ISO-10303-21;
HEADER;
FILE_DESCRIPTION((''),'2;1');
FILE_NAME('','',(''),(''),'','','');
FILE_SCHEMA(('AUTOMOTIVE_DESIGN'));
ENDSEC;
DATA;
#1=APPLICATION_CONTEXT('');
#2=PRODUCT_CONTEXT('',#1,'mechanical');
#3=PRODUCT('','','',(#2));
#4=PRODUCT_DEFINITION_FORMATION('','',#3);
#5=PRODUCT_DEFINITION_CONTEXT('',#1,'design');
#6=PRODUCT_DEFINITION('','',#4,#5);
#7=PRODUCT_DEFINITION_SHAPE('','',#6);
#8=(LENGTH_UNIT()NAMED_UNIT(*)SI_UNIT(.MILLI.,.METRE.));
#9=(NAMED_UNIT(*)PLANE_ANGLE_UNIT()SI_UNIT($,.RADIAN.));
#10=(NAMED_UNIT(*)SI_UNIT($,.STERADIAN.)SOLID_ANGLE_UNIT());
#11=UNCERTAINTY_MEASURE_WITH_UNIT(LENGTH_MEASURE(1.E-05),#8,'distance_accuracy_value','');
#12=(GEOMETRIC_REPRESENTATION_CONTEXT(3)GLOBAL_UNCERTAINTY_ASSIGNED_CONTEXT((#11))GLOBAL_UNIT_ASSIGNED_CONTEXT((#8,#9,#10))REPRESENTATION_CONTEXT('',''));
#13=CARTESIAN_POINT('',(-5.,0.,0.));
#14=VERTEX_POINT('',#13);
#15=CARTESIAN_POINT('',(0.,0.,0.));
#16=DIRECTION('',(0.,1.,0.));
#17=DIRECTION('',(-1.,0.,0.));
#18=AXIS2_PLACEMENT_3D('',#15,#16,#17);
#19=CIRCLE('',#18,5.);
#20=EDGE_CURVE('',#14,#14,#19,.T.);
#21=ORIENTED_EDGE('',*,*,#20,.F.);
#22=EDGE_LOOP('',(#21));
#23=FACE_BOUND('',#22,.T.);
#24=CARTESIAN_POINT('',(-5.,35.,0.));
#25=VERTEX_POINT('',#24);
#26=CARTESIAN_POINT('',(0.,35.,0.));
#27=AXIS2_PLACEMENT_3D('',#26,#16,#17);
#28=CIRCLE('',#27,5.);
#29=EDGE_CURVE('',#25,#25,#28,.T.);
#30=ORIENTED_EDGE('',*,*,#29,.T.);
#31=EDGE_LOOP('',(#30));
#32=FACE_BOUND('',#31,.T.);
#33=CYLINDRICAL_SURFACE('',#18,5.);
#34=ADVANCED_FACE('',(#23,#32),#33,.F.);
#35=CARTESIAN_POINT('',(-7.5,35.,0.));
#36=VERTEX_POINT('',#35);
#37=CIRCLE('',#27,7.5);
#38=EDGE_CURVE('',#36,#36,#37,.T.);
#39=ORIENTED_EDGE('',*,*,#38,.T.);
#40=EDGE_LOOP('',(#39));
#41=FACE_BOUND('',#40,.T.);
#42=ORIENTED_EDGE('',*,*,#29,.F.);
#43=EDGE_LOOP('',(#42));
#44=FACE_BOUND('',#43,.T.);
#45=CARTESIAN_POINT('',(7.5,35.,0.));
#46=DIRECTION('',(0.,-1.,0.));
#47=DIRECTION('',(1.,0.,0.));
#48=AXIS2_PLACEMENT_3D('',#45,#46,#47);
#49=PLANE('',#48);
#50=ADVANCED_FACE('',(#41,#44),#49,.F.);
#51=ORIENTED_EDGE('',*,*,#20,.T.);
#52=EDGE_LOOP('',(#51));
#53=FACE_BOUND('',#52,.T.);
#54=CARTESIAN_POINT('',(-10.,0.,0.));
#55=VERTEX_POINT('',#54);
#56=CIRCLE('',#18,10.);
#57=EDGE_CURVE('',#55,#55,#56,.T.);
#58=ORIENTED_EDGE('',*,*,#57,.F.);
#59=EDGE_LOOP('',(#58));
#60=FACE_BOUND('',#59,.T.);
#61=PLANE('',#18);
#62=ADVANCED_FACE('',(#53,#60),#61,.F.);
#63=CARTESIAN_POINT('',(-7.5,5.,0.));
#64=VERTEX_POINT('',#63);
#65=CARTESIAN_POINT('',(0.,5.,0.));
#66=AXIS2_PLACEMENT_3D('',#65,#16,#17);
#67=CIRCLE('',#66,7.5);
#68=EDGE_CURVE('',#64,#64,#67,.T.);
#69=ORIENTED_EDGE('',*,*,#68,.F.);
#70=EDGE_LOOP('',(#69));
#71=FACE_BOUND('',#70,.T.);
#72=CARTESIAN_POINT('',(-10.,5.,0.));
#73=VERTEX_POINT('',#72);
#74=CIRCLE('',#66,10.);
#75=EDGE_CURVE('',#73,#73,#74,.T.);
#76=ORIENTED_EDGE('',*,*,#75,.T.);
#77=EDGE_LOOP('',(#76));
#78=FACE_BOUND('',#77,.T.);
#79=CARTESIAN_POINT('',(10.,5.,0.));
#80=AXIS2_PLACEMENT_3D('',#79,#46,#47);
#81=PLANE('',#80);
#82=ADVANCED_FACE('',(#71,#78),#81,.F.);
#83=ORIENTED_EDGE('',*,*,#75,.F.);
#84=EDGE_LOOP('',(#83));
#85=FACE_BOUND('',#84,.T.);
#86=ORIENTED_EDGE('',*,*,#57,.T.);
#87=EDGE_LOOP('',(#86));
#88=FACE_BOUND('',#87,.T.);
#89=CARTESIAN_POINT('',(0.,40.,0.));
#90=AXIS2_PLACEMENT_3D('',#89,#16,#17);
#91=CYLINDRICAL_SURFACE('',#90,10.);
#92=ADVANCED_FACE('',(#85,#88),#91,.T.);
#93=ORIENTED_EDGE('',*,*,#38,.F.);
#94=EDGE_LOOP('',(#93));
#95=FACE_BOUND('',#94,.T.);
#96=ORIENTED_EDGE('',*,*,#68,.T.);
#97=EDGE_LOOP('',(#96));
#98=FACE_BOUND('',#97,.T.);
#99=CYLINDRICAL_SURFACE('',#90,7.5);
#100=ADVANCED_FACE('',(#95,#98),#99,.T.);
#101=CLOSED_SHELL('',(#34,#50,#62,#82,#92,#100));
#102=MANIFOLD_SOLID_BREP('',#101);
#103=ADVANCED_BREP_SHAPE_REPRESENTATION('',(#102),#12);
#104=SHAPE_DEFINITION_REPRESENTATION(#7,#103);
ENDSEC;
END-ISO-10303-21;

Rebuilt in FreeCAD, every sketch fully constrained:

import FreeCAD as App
import Part
import Sketcher
Q = App.Units.Quantity

doc = App.newDocument("Part")
body = doc.addObject("PartDesign::Body", "Body")

# Sketch on XY plane
sketch1 = body.newObject("Sketcher::SketchObject", "Sketch")
sketch1.AttachmentSupport = (doc.getObject("XY_Plane"), [""])
sketch1.MapMode = "FlatFace"
sketch1.addGeometry(Part.LineSegment(App.Vector(0, 0, 0), App.Vector(10, 0, 0)), False)
sketch1.addGeometry(Part.LineSegment(App.Vector(10, 0, 0), App.Vector(10, 5, 0)), False)
sketch1.addGeometry(Part.LineSegment(App.Vector(10, 5, 0), App.Vector(7.5, 5, 0)), False)
sketch1.addGeometry(Part.LineSegment(App.Vector(7.5, 5, 0), App.Vector(7.5, 35, 0)), False)
sketch1.addGeometry(Part.LineSegment(App.Vector(7.5, 35, 0), App.Vector(0, 35, 0)), False)
sketch1.addGeometry(Part.LineSegment(App.Vector(0, 35, 0), App.Vector(0, 0, 0)), False)
sketch1.addConstraint(Sketcher.Constraint("Coincident", 0, 2, 1, 1))
sketch1.addConstraint(Sketcher.Constraint("Coincident", 1, 2, 2, 1))
sketch1.addConstraint(Sketcher.Constraint("Coincident", 2, 2, 3, 1))
sketch1.addConstraint(Sketcher.Constraint("Coincident", 3, 2, 4, 1))
sketch1.addConstraint(Sketcher.Constraint("Coincident", 4, 2, 5, 1))
sketch1.addConstraint(Sketcher.Constraint("Coincident", 5, 2, 0, 1))
sketch1.addConstraint(Sketcher.Constraint("Horizontal", 0))
sketch1.addConstraint(Sketcher.Constraint("Vertical", 1))
sketch1.addConstraint(Sketcher.Constraint("Horizontal", 2))
sketch1.addConstraint(Sketcher.Constraint("Vertical", 3))
sketch1.addConstraint(Sketcher.Constraint("Horizontal", 4))
sketch1.addConstraint(Sketcher.Constraint("Vertical", 5))
sketch1.addConstraint(Sketcher.Constraint("Coincident", 5, 2, -1, 1))
sketch1.addConstraint(Sketcher.Constraint("DistanceX", 0, 1, 0, 2, Q("10 mm")))
sketch1.addConstraint(Sketcher.Constraint("DistanceY", 1, 1, 1, 2, Q("5 mm")))
sketch1.addConstraint(Sketcher.Constraint("DistanceY", 3, 1, 3, 2, Q("30 mm")))
sketch1.addConstraint(Sketcher.Constraint("DistanceX", 2, 2, 2, 1, Q("2.5 mm")))
revolution = body.newObject("PartDesign::Revolution", "Revolution")
revolution.Profile = sketch1
revolution.ReferenceAxis = (sketch1, ["V_Axis"])
revolution.Angle = 360

# Sketch on XZ plane
sketch2 = body.newObject("Sketcher::SketchObject", "Sketch001")
sketch2.AttachmentSupport = (doc.getObject("XZ_Plane"), [""])
sketch2.MapMode = "FlatFace"
sketch2.AttachmentOffset = App.Placement(App.Vector(0, 0, -35), App.Rotation())
sketch2.addGeometry(Part.Circle(App.Vector(0, 0, 0), App.Vector(0, 0, 1), 5), False)
sketch2.addConstraint(Sketcher.Constraint("Coincident", 0, 3, -1, 1))
sketch2.addConstraint(Sketcher.Constraint("Diameter", 0, Q("10 mm")))
pocket1 = body.newObject("PartDesign::Pocket", "Pocket")
pocket1.Profile = sketch2
pocket1.Type = "ThroughAll"
pocket1.Reversed = True

doc.recompute()
